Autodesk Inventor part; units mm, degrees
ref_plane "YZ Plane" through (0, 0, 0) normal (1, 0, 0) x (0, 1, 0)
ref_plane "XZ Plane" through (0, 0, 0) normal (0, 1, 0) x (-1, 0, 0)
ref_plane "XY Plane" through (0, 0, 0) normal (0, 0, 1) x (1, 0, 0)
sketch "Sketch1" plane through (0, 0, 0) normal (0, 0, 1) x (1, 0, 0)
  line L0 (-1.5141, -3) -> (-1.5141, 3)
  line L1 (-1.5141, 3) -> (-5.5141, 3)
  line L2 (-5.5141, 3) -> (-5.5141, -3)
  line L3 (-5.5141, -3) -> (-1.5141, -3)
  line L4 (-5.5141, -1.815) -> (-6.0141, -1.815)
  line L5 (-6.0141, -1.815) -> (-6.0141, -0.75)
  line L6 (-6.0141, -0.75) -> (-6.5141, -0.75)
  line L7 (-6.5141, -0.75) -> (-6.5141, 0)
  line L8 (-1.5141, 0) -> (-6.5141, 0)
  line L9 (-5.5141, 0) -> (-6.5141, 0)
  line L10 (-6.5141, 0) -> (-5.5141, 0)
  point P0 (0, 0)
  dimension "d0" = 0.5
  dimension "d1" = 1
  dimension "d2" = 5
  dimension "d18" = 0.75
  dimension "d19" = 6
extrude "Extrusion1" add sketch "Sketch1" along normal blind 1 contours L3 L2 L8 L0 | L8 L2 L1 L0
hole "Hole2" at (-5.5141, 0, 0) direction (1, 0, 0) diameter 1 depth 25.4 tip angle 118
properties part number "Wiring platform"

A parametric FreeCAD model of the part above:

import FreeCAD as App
import Part
import Sketcher
from FreeCAD import Vector


def add_polygon(sketch, points):
    """Adds a closed chain of lines whose ends are joined by coincident constraints."""
    first, n = sketch.GeometryCount, len(points)
    for a, b in zip(points, points[1:] + points[:1]):
        sketch.addGeometry(Part.LineSegment(App.Vector(*a, 0), App.Vector(*b, 0)), False)
    for i in range(n):
        sketch.addConstraint(Sketcher.Constraint("Coincident", first + i, 2, first + (i + 1) % n, 1))

doc = App.newDocument("Part")
body = doc.addObject("PartDesign::Body", "Body")

# Sketch on XY plane
sketch1 = body.newObject("Sketcher::SketchObject", "Sketch")
sketch1.AttachmentSupport = (doc.getObject("XY_Plane"), [""])
sketch1.MapMode = "FlatFace"
add_polygon(sketch1, [(-5.5, -3), (-1.5, -3), (-1.5, 3), (-5.5, 3)])  # lines 0-3
sketch1.addConstraint(Sketcher.Constraint("Horizontal", 0))
sketch1.addConstraint(Sketcher.Constraint("Vertical", 1))
sketch1.addConstraint(Sketcher.Constraint("Horizontal", 2))
sketch1.addConstraint(Sketcher.Constraint("Vertical", 3))
sketch1.addConstraint(Sketcher.Constraint("DistanceY", 1, 1, 1, 2, 6.0))
sketch1.addConstraint(Sketcher.Constraint("DistanceX", 0, 1, 0, 2, 4.0))
sketch1.addConstraint(Sketcher.Constraint("DistanceY", 0, 2, -1, 1, 3.0))
sketch1.addConstraint(Sketcher.Constraint("DistanceX", 0, 2, -1, 1, 1.514))
pad1 = body.newObject("PartDesign::Pad", "Pad")
pad1.Profile = sketch1
pad1.Length = 1

# Sketch on YZ plane
sketch2 = body.newObject("Sketcher::SketchObject", "Sketch001")
sketch2.AttachmentSupport = (doc.getObject("YZ_Plane"), [""])
sketch2.MapMode = "FlatFace"
sketch2.AttachmentOffset = App.Placement(Vector(0, 0, -5.5141), App.Rotation())
sketch2.addGeometry(Part.Circle(Vector(0, 0, 0), Vector(0, 0, 1), 0.5), False)
sketch2.addConstraint(Sketcher.Constraint("Coincident", 0, 3, -1, 1))
sketch2.addConstraint(Sketcher.Constraint("Diameter", 0, 1.0))
doc.recompute()
hole = body.newObject("PartDesign::Hole", "Hole")
hole.Profile = sketch2
hole.ThreadType = "None"
hole.Diameter = 1
hole.DepthType = "Dimension"
hole.Depth = 25.4
hole.DrillPoint = "Angled"
hole.DrillPointAngle = 118
hole.Reversed = True

doc.recompute()
